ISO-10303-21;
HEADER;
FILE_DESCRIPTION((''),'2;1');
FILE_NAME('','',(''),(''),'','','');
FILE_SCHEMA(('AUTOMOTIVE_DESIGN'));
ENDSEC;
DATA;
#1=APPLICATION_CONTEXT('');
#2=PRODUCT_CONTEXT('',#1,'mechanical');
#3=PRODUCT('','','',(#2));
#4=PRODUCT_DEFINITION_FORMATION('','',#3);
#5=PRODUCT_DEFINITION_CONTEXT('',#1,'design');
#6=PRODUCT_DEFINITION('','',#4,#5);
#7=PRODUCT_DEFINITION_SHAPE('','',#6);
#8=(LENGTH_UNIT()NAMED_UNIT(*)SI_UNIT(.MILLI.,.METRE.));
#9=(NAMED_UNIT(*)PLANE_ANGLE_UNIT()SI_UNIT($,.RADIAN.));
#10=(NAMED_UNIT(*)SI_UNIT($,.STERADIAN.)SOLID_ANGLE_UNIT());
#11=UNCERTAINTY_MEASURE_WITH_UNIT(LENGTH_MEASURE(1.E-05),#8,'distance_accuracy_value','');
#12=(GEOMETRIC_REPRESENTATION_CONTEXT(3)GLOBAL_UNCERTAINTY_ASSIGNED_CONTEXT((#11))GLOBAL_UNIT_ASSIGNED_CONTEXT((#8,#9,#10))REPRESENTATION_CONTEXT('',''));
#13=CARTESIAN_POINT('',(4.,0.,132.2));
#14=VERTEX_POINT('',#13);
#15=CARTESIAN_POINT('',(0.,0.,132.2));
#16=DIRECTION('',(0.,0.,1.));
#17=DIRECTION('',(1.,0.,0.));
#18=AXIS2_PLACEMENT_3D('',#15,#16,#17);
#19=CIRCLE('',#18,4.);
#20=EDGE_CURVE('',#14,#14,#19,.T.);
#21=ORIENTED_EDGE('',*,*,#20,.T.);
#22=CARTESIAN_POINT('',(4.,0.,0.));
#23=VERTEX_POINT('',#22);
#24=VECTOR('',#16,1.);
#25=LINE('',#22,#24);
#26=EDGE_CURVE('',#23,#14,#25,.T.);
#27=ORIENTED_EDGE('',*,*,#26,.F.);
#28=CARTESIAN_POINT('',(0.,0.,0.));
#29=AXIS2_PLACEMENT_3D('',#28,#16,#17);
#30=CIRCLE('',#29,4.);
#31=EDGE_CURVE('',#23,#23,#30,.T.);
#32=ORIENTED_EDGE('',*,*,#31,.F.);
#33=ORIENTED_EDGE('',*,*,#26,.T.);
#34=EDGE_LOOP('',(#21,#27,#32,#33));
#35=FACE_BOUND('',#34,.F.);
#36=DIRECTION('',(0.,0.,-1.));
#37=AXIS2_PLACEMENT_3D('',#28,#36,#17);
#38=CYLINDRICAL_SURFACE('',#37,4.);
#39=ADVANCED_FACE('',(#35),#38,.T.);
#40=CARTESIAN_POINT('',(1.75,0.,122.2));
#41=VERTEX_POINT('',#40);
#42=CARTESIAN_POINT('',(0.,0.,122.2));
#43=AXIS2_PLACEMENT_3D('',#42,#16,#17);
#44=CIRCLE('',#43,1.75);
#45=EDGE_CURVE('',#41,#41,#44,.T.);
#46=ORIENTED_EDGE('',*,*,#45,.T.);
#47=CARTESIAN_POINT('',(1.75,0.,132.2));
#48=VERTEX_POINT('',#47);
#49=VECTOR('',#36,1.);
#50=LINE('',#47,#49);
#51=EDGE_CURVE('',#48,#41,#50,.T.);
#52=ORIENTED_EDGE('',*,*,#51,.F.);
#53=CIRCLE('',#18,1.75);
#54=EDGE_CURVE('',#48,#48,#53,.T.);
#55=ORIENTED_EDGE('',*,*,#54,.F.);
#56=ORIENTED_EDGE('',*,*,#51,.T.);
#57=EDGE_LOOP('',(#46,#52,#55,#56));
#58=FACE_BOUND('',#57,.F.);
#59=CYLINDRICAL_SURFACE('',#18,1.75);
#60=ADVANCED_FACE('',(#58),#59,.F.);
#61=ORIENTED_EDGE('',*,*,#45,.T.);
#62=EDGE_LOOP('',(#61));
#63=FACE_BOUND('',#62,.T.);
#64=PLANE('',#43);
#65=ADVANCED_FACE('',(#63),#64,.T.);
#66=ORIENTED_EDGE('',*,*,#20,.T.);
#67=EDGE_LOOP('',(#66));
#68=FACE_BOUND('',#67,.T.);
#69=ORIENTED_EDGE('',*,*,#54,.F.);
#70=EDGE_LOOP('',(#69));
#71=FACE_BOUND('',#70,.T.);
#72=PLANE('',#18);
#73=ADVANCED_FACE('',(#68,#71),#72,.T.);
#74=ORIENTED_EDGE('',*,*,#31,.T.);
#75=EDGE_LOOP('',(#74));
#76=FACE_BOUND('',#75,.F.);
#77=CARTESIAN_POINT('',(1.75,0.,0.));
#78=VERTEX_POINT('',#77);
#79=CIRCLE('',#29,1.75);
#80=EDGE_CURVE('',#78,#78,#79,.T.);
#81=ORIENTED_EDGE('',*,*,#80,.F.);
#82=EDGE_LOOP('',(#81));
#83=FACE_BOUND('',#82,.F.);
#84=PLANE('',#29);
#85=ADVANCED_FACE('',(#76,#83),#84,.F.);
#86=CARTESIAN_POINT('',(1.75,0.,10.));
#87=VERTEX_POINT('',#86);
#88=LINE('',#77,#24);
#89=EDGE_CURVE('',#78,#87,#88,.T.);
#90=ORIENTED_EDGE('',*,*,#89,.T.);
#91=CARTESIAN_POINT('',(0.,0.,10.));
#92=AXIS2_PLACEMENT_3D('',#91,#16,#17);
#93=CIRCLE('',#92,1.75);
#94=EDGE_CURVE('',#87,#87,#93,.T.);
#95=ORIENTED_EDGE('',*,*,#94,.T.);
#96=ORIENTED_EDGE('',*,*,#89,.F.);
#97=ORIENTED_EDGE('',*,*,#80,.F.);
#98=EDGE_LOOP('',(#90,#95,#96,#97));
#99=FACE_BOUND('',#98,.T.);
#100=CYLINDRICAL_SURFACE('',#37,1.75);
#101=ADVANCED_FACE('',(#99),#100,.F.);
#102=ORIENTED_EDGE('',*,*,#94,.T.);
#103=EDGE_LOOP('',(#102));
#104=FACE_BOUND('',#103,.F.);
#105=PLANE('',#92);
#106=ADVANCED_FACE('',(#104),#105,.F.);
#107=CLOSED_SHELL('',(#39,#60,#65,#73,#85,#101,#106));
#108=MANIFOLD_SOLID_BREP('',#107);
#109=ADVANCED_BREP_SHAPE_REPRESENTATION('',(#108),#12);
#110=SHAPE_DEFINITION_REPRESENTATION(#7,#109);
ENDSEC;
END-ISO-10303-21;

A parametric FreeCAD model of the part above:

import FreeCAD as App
import Part
import Sketcher
from FreeCAD import Vector

doc = App.newDocument("Part")
body = doc.addObject("PartDesign::Body", "Body")

# Sketch on XY plane
sketch1 = body.newObject("Sketcher::SketchObject", "Sketch")
sketch1.AttachmentSupport = (doc.getObject("XY_Plane"), [""])
sketch1.MapMode = "FlatFace"
sketch1.addGeometry(Part.Circle(Vector(0, 0, 0), Vector(0, 0, 1), 4), False)
sketch1.addConstraint([
    Sketcher.Constraint("Coincident", 0, 3, -1, 1),
    Sketcher.Constraint("Diameter", 0, 8.0),
])
pad1 = body.newObject("PartDesign::Pad", "Pad")
pad1.Profile = sketch1
pad1.Length = 132.2

# Sketch on XY plane
sketch2 = body.newObject("Sketcher::SketchObject", "Sketch001")
sketch2.AttachmentSupport = (doc.getObject("XY_Plane"), [""])
sketch2.MapMode = "FlatFace"
sketch2.addGeometry(Part.Circle(Vector(0, 0, 0), Vector(0, 0, 1), 1.8), False)
sketch2.addConstraint([
    Sketcher.Constraint("Coincident", 0, 3, -1, 1),
    Sketcher.Constraint("Diameter", 0, 3.5),
])
pocket1 = body.newObject("PartDesign::Pocket", "Pocket")
pocket1.Profile = sketch2
pocket1.Length = 10
pocket1.Reversed = True

# Sketch on XY plane
sketch3 = body.newObject("Sketcher::SketchObject", "Sketch002")
sketch3.AttachmentSupport = (doc.getObject("XY_Plane"), [""])
sketch3.MapMode = "FlatFace"
sketch3.AttachmentOffset = App.Placement(Vector(0, 0, 132.2), App.Rotation())
sketch3.addGeometry(Part.Circle(Vector(0, 0, 0), Vector(0, 0, 1), 1.8), False)
sketch3.addConstraint([
    Sketcher.Constraint("Coincident", 0, 3, -1, 1),
    Sketcher.Constraint("Diameter", 0, 3.5),
])
pocket2 = body.newObject("PartDesign::Pocket", "Pocket001")
pocket2.Profile = sketch3
pocket2.Length = 10

doc.recompute()
